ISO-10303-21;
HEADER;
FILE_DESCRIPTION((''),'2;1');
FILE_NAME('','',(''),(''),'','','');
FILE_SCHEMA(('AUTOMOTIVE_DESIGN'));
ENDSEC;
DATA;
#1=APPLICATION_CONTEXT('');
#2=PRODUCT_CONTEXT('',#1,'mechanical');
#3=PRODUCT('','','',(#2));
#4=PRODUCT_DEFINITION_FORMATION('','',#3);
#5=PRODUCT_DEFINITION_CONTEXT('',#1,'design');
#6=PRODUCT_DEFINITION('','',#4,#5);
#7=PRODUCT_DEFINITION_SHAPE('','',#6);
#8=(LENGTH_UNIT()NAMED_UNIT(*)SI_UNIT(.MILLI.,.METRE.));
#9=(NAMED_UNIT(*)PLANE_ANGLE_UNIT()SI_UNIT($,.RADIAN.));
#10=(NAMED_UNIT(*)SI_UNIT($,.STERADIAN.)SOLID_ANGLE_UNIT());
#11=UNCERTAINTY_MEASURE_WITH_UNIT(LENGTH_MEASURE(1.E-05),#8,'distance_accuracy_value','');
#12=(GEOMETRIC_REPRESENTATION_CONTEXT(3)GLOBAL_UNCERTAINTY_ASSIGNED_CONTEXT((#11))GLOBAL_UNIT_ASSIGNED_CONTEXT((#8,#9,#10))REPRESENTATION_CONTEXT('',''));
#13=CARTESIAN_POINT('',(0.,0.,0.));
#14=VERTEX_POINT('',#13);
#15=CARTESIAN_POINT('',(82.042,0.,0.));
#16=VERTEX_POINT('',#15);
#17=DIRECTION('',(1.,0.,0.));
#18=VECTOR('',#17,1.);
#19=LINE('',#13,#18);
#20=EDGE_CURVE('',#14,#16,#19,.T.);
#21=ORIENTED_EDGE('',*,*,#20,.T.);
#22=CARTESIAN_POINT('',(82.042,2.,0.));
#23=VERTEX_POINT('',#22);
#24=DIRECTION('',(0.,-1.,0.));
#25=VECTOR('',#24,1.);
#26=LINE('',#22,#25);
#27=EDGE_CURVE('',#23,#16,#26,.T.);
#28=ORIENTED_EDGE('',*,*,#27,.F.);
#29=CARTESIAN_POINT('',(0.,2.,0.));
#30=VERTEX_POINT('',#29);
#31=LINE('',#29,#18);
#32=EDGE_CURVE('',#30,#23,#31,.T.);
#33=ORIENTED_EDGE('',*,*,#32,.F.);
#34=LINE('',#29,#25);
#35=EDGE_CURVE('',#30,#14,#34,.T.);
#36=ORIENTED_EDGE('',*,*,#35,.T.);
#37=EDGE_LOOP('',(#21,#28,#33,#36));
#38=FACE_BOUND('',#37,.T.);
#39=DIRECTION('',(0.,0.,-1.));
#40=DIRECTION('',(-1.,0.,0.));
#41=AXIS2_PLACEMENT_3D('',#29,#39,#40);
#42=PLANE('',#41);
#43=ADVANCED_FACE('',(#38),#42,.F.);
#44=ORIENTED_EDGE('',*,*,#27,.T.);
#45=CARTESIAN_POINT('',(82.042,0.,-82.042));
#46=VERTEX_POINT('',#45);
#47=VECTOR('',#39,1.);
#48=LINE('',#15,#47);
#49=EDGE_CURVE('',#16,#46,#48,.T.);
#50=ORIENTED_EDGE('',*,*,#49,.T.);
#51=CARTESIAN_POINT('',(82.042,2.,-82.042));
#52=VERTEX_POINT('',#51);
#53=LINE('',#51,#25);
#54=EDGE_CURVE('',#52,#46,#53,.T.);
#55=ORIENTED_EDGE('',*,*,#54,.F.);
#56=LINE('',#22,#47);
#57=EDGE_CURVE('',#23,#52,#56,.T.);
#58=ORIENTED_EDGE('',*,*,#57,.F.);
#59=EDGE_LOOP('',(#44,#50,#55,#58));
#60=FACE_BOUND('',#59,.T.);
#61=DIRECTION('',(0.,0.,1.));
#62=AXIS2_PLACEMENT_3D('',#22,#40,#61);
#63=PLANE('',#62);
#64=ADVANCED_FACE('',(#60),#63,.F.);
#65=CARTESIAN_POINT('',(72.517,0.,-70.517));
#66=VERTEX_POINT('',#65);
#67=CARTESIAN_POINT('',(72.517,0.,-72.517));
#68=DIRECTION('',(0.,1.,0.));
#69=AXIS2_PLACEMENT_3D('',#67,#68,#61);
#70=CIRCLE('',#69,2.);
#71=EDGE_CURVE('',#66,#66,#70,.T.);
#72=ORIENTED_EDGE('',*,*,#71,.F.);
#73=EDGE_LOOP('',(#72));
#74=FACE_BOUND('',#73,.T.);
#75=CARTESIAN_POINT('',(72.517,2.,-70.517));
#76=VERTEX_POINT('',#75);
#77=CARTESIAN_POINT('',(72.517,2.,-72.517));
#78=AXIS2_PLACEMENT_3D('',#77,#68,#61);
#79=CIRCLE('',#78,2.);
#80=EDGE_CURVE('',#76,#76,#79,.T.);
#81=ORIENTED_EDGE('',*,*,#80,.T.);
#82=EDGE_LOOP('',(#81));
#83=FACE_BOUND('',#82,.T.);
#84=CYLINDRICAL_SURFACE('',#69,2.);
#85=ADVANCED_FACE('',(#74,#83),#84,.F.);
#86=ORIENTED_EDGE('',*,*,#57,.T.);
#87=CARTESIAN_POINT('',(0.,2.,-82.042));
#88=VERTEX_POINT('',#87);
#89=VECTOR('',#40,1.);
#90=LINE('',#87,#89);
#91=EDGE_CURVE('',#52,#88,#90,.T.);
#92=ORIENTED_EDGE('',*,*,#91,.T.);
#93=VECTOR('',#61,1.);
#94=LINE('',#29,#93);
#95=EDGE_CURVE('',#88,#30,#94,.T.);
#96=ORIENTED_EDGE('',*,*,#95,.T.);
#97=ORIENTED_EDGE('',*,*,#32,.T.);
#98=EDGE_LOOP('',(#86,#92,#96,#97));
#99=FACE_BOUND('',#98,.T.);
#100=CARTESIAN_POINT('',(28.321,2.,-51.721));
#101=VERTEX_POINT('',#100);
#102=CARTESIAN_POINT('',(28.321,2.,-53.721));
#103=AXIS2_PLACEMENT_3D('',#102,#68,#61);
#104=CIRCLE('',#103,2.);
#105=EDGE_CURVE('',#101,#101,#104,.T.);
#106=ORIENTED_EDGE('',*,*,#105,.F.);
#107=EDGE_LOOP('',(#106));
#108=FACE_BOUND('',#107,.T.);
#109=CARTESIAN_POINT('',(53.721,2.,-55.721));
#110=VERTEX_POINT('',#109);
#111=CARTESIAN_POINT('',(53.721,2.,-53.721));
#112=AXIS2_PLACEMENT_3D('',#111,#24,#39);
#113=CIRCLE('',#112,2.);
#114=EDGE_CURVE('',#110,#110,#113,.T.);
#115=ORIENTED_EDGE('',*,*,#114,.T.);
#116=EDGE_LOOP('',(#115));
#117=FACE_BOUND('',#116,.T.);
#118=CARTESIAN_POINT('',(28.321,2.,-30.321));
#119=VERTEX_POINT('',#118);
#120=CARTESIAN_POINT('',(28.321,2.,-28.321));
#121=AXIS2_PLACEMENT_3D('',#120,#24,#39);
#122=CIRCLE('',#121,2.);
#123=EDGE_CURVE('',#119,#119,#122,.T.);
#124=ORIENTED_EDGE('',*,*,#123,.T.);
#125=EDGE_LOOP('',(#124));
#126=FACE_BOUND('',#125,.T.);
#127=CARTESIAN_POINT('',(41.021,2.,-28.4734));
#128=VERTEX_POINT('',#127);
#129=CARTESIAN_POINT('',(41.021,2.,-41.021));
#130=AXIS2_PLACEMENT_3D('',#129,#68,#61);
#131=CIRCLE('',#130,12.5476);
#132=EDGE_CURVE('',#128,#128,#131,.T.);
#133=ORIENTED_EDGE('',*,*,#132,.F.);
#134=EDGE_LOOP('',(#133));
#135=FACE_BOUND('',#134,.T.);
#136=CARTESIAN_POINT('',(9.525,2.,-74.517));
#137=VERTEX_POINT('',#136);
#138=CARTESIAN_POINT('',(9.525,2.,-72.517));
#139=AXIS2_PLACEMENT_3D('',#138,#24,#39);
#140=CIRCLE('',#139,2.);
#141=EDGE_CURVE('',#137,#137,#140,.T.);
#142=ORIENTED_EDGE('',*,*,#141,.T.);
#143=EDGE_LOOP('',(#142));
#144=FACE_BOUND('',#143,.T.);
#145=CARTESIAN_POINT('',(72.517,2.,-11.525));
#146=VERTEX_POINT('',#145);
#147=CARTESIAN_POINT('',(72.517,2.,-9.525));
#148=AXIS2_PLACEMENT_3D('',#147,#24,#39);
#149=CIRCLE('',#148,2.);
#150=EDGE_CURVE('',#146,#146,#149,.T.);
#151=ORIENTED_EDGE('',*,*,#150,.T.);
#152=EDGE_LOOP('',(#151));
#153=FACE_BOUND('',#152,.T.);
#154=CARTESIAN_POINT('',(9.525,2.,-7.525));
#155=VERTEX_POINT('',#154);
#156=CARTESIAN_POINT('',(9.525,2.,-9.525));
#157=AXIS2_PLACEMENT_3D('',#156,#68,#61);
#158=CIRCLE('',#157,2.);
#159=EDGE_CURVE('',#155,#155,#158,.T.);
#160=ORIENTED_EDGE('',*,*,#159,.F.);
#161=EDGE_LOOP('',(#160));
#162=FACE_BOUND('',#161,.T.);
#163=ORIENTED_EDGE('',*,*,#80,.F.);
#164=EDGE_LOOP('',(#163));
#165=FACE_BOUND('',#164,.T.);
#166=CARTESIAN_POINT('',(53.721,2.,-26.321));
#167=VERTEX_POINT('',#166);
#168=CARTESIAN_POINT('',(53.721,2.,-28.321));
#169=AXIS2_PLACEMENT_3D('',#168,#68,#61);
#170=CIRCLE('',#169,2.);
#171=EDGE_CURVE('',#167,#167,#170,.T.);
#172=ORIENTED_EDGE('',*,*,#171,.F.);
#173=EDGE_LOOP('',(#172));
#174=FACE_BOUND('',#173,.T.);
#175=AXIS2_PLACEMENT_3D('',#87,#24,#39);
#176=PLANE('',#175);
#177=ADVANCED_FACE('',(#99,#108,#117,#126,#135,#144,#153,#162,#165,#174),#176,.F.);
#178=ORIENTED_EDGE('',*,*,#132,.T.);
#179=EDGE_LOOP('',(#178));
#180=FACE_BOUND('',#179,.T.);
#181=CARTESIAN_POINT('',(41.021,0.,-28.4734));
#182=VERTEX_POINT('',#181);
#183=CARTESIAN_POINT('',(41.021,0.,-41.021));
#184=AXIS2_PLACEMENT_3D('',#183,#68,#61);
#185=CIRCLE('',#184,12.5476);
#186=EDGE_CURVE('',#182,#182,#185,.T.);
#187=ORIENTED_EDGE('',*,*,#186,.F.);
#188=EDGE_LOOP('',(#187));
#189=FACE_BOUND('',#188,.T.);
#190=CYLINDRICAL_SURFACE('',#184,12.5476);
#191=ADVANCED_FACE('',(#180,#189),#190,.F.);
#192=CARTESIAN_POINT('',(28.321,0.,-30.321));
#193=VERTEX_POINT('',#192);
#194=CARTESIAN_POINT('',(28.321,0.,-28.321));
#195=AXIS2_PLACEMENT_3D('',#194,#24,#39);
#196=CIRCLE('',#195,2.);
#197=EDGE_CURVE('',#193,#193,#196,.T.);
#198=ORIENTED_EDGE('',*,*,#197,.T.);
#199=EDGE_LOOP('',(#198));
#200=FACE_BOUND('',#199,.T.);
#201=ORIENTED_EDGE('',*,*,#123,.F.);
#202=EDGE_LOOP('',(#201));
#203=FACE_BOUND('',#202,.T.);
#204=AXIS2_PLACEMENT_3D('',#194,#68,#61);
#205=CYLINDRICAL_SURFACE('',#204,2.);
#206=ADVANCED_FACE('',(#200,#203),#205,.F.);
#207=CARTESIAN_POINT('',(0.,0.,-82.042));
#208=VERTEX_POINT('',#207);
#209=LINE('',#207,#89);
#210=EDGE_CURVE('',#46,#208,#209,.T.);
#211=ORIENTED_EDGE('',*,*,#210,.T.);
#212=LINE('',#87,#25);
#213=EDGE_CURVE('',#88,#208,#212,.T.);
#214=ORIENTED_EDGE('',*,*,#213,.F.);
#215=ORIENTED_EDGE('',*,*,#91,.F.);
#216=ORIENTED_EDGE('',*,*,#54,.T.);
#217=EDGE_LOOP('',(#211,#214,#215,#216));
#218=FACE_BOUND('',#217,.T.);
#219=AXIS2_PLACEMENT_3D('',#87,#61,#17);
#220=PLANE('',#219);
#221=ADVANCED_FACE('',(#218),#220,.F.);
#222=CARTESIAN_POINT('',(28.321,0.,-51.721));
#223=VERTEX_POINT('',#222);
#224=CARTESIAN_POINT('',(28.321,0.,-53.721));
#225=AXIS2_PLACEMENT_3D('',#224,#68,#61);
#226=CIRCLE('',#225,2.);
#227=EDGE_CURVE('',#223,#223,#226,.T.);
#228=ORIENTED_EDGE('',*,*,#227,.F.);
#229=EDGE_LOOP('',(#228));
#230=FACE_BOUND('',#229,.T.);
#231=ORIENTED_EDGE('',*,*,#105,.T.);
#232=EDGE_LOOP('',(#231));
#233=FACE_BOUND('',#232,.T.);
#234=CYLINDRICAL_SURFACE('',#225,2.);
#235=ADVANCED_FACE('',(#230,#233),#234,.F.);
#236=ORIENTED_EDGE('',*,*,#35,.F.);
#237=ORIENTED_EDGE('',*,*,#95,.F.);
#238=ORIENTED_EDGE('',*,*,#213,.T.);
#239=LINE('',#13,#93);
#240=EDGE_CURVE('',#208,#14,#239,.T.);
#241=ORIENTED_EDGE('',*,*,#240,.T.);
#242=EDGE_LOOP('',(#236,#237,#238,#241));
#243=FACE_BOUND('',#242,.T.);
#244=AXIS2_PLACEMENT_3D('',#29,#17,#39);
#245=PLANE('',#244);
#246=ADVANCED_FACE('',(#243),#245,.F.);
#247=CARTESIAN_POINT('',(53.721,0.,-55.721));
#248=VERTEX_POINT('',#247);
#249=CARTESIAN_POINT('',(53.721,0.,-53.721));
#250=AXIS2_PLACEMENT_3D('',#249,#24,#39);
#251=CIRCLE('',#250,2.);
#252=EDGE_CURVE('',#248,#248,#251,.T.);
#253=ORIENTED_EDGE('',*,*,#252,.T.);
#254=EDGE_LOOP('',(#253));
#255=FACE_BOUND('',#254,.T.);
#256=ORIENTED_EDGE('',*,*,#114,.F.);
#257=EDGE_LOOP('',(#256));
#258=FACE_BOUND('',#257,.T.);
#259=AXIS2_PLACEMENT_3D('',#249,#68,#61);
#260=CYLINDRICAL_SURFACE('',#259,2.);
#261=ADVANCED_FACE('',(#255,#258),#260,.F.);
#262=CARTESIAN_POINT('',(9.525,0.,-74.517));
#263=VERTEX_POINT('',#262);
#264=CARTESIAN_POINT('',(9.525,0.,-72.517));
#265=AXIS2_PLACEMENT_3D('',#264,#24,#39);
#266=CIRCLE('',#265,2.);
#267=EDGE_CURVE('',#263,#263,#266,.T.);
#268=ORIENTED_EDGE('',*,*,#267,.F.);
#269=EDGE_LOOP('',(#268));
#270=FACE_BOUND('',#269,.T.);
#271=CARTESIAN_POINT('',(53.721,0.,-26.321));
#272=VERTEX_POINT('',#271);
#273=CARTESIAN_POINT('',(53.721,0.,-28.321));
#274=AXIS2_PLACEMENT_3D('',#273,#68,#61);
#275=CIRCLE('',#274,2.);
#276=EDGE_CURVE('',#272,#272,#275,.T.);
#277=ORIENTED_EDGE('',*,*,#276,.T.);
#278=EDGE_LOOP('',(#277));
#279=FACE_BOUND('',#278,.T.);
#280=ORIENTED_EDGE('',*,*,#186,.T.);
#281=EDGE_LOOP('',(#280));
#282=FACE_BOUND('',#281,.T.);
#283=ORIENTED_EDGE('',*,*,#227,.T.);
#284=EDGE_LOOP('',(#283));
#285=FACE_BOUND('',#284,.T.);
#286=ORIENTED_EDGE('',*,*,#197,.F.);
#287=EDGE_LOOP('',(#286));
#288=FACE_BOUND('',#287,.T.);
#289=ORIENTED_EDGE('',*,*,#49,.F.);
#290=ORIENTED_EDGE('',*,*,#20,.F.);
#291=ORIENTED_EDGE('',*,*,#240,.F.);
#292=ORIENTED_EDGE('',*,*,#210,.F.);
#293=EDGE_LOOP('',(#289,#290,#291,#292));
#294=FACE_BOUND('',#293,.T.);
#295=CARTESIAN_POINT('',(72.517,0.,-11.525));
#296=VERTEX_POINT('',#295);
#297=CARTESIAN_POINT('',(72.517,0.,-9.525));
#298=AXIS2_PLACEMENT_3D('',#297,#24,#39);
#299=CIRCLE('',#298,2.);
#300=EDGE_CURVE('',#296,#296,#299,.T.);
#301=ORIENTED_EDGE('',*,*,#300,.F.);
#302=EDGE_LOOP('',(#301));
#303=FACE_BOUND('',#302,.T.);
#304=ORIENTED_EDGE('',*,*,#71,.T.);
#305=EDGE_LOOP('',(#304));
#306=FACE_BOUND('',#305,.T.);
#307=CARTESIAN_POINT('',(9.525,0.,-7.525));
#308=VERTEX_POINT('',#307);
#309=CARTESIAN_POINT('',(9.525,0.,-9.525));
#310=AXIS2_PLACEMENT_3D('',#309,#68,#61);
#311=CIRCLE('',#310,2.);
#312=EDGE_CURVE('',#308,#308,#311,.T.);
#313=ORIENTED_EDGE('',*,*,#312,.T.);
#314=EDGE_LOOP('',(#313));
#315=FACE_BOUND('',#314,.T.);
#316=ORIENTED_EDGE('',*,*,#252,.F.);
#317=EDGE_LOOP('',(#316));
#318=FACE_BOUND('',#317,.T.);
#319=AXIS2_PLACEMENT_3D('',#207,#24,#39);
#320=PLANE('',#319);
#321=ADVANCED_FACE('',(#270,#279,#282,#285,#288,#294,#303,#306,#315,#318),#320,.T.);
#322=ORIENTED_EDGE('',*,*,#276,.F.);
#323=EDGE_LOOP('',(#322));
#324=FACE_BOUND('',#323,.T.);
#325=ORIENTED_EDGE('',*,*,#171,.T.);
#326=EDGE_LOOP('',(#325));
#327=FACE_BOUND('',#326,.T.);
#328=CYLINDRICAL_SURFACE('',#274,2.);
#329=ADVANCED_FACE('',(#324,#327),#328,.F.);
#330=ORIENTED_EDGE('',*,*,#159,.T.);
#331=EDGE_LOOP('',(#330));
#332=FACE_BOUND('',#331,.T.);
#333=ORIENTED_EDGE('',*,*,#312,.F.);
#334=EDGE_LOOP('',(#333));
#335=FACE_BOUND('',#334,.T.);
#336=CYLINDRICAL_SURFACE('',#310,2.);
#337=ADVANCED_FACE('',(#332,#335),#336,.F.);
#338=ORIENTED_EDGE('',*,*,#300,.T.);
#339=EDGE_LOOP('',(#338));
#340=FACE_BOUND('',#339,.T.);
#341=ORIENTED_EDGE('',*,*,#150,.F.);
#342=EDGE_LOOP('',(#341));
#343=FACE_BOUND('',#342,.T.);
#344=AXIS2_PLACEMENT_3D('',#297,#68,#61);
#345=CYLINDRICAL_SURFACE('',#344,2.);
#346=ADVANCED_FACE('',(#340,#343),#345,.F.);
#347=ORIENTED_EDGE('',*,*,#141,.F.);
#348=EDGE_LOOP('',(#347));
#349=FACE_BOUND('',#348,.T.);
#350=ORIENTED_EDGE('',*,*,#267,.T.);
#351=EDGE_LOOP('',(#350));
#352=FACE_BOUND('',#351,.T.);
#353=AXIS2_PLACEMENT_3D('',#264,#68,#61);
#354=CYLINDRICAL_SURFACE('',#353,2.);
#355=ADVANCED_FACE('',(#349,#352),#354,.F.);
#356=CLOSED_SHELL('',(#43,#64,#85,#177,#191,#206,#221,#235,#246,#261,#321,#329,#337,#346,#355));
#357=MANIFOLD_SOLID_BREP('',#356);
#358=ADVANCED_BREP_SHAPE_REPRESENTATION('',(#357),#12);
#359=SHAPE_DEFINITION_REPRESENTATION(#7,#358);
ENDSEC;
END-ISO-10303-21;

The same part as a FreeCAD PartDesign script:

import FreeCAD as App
import Part
import Sketcher

V = App.Vector
Q = App.Units.Quantity


def add_polygon(sketch, points):
    """Adds a closed chain of lines whose ends are joined by coincident constraints."""
    first, n = sketch.GeometryCount, len(points)
    for a, b in zip(points, points[1:] + points[:1]):
        sketch.addGeometry(Part.LineSegment(App.Vector(*a, 0), App.Vector(*b, 0)), False)
    for i in range(n):
        sketch.addConstraint(Sketcher.Constraint("Coincident", first + i, 2, first + (i + 1) % n, 1))

doc = App.newDocument("Part")
body = doc.addObject("PartDesign::Body", "Body")

# Sketch on XZ plane
sketch1 = body.newObject("Sketcher::SketchObject", "Sketch")
sketch1.AttachmentSupport = (doc.getObject("XZ_Plane"), [""])
sketch1.MapMode = "FlatFace"
add_polygon(sketch1, [(0, -82.042), (0, 0), (82.042, 0), (82.042, -82.042)])  # lines 0-3
sketch1.addConstraint(Sketcher.Constraint("Vertical", 0))
sketch1.addConstraint(Sketcher.Constraint("Horizontal", 1))
sketch1.addConstraint(Sketcher.Constraint("Vertical", 2))
sketch1.addConstraint(Sketcher.Constraint("Horizontal", 3))
sketch1.addConstraint(Sketcher.Constraint("Coincident", 0, 2, -1, 1))
sketch1.addConstraint(Sketcher.Constraint("Equal", 3, 0))
sketch1.addConstraint(Sketcher.Constraint("DistanceX", 1, 1, 1, 2, Q("82.042 mm")))
pad1 = body.newObject("PartDesign::Pad", "Pad")
pad1.Profile = sketch1
pad1.Length = 2
pad1.Reversed = True

# Sketch on XZ plane
sketch2 = body.newObject("Sketcher::SketchObject", "Sketch001")
sketch2.AttachmentSupport = (doc.getObject("XZ_Plane"), [""])
sketch2.MapMode = "FlatFace"
sketch2.AttachmentOffset = App.Placement(V(0, 0, -2), App.Rotation())
sketch2.addGeometry(Part.Circle(V(28.321, -53.721, 0), V(0, 0, 1), 2), False)
sketch2.addGeometry(Part.Circle(V(53.721, -53.721, 0), V(0, 0, 1), 2), False)
sketch2.addGeometry(Part.Circle(V(53.721, -28.321, 0), V(0, 0, 1), 2), False)
sketch2.addGeometry(Part.Circle(V(28.321, -28.321, 0), V(0, 0, 1), 2), False)
sketch2.addGeometry(Part.Circle(V(9.525, -9.525, 0), V(0, 0, 1), 2), False)
sketch2.addGeometry(Part.Circle(V(9.525, -72.517, 0), V(0, 0, 1), 2), False)
sketch2.addGeometry(Part.Circle(V(72.517, -9.525, 0), V(0, 0, 1), 2), False)
sketch2.addGeometry(Part.Circle(V(72.517, -72.517, 0), V(0, 0, 1), 2), False)
sketch2.addConstraint(Sketcher.Constraint("Equal", 0, 1))
sketch2.addConstraint(Sketcher.Constraint("Equal", 1, 2))
sketch2.addConstraint(Sketcher.Constraint("Equal", 2, 3))
sketch2.addConstraint(Sketcher.Constraint("Equal", 3, 4))
sketch2.addConstraint(Sketcher.Constraint("Equal", 4, 5))
sketch2.addConstraint(Sketcher.Constraint("Equal", 5, 6))
sketch2.addConstraint(Sketcher.Constraint("Equal", 6, 7))
sketch2.addConstraint(Sketcher.Constraint("Horizontal", 0, 3, 1, 3))
sketch2.addConstraint(Sketcher.Constraint("Horizontal", 2, 3, 3, 3))
sketch2.addConstraint(Sketcher.Constraint("Horizontal", 4, 3, 6, 3))
sketch2.addConstraint(Sketcher.Constraint("Horizontal", 5, 3, 7, 3))
sketch2.addConstraint(Sketcher.Constraint("Vertical", 1, 3, 2, 3))
sketch2.addConstraint(Sketcher.Constraint("Vertical", 0, 3, 3, 3))
sketch2.addConstraint(Sketcher.Constraint("Vertical", 4, 3, 5, 3))
sketch2.addConstraint(Sketcher.Constraint("Vertical", 6, 3, 7, 3))
sketch2.addConstraint(Sketcher.Constraint("Diameter", 0, Q("4 mm")))
sketch2.addConstraint(Sketcher.Constraint("DistanceX", 0, 3, 1, 3, Q("25.4 mm")))
sketch2.addConstraint(Sketcher.Constraint("DistanceY", 1, 3, 2, 3, Q("25.4 mm")))
sketch2.addConstraint(Sketcher.Constraint("DistanceX", -1, 1, 0, 3, Q("28.321 mm")))
sketch2.addConstraint(Sketcher.Constraint("DistanceY", 0, 3, -1, 1, Q("53.721 mm")))
sketch2.addConstraint(Sketcher.Constraint("DistanceX", -1, 1, 4, 3, Q("9.525 mm")))
sketch2.addConstraint(Sketcher.Constraint("DistanceY", 4, 3, -1, 1, Q("9.525 mm")))
sketch2.addConstraint(Sketcher.Constraint("DistanceY", 5, 3, -1, 1, Q("72.517 mm")))
sketch2.addConstraint(Sketcher.Constraint("DistanceX", -1, 1, 6, 3, Q("72.517 mm")))
pocket1 = body.newObject("PartDesign::Pocket", "Pocket")
pocket1.Profile = sketch2
pocket1.Type = "ThroughAll"
pocket1.Reversed = True

# Sketch on XZ plane
sketch3 = body.newObject("Sketcher::SketchObject", "Sketch002")
sketch3.AttachmentSupport = (doc.getObject("XZ_Plane"), [""])
sketch3.MapMode = "FlatFace"
sketch3.AttachmentOffset = App.Placement(V(0, 0, -2), App.Rotation())
sketch3.addGeometry(Part.Circle(V(41.021, -41.021, 0), V(0, 0, 1), 12.5476), False)
sketch3.addConstraint(Sketcher.Constraint("Diameter", 0, Q("25.0952 mm")))
sketch3.addConstraint(Sketcher.Constraint("DistanceX", -1, 1, 0, 3, Q("41.021 mm")))
sketch3.addConstraint(Sketcher.Constraint("DistanceY", 0, 3, -1, 1, Q("41.021 mm")))
pocket2 = body.newObject("PartDesign::Pocket", "Pocket001")
pocket2.Profile = sketch3
pocket2.Type = "ThroughAll"
pocket2.Reversed = True

doc.recompute()
